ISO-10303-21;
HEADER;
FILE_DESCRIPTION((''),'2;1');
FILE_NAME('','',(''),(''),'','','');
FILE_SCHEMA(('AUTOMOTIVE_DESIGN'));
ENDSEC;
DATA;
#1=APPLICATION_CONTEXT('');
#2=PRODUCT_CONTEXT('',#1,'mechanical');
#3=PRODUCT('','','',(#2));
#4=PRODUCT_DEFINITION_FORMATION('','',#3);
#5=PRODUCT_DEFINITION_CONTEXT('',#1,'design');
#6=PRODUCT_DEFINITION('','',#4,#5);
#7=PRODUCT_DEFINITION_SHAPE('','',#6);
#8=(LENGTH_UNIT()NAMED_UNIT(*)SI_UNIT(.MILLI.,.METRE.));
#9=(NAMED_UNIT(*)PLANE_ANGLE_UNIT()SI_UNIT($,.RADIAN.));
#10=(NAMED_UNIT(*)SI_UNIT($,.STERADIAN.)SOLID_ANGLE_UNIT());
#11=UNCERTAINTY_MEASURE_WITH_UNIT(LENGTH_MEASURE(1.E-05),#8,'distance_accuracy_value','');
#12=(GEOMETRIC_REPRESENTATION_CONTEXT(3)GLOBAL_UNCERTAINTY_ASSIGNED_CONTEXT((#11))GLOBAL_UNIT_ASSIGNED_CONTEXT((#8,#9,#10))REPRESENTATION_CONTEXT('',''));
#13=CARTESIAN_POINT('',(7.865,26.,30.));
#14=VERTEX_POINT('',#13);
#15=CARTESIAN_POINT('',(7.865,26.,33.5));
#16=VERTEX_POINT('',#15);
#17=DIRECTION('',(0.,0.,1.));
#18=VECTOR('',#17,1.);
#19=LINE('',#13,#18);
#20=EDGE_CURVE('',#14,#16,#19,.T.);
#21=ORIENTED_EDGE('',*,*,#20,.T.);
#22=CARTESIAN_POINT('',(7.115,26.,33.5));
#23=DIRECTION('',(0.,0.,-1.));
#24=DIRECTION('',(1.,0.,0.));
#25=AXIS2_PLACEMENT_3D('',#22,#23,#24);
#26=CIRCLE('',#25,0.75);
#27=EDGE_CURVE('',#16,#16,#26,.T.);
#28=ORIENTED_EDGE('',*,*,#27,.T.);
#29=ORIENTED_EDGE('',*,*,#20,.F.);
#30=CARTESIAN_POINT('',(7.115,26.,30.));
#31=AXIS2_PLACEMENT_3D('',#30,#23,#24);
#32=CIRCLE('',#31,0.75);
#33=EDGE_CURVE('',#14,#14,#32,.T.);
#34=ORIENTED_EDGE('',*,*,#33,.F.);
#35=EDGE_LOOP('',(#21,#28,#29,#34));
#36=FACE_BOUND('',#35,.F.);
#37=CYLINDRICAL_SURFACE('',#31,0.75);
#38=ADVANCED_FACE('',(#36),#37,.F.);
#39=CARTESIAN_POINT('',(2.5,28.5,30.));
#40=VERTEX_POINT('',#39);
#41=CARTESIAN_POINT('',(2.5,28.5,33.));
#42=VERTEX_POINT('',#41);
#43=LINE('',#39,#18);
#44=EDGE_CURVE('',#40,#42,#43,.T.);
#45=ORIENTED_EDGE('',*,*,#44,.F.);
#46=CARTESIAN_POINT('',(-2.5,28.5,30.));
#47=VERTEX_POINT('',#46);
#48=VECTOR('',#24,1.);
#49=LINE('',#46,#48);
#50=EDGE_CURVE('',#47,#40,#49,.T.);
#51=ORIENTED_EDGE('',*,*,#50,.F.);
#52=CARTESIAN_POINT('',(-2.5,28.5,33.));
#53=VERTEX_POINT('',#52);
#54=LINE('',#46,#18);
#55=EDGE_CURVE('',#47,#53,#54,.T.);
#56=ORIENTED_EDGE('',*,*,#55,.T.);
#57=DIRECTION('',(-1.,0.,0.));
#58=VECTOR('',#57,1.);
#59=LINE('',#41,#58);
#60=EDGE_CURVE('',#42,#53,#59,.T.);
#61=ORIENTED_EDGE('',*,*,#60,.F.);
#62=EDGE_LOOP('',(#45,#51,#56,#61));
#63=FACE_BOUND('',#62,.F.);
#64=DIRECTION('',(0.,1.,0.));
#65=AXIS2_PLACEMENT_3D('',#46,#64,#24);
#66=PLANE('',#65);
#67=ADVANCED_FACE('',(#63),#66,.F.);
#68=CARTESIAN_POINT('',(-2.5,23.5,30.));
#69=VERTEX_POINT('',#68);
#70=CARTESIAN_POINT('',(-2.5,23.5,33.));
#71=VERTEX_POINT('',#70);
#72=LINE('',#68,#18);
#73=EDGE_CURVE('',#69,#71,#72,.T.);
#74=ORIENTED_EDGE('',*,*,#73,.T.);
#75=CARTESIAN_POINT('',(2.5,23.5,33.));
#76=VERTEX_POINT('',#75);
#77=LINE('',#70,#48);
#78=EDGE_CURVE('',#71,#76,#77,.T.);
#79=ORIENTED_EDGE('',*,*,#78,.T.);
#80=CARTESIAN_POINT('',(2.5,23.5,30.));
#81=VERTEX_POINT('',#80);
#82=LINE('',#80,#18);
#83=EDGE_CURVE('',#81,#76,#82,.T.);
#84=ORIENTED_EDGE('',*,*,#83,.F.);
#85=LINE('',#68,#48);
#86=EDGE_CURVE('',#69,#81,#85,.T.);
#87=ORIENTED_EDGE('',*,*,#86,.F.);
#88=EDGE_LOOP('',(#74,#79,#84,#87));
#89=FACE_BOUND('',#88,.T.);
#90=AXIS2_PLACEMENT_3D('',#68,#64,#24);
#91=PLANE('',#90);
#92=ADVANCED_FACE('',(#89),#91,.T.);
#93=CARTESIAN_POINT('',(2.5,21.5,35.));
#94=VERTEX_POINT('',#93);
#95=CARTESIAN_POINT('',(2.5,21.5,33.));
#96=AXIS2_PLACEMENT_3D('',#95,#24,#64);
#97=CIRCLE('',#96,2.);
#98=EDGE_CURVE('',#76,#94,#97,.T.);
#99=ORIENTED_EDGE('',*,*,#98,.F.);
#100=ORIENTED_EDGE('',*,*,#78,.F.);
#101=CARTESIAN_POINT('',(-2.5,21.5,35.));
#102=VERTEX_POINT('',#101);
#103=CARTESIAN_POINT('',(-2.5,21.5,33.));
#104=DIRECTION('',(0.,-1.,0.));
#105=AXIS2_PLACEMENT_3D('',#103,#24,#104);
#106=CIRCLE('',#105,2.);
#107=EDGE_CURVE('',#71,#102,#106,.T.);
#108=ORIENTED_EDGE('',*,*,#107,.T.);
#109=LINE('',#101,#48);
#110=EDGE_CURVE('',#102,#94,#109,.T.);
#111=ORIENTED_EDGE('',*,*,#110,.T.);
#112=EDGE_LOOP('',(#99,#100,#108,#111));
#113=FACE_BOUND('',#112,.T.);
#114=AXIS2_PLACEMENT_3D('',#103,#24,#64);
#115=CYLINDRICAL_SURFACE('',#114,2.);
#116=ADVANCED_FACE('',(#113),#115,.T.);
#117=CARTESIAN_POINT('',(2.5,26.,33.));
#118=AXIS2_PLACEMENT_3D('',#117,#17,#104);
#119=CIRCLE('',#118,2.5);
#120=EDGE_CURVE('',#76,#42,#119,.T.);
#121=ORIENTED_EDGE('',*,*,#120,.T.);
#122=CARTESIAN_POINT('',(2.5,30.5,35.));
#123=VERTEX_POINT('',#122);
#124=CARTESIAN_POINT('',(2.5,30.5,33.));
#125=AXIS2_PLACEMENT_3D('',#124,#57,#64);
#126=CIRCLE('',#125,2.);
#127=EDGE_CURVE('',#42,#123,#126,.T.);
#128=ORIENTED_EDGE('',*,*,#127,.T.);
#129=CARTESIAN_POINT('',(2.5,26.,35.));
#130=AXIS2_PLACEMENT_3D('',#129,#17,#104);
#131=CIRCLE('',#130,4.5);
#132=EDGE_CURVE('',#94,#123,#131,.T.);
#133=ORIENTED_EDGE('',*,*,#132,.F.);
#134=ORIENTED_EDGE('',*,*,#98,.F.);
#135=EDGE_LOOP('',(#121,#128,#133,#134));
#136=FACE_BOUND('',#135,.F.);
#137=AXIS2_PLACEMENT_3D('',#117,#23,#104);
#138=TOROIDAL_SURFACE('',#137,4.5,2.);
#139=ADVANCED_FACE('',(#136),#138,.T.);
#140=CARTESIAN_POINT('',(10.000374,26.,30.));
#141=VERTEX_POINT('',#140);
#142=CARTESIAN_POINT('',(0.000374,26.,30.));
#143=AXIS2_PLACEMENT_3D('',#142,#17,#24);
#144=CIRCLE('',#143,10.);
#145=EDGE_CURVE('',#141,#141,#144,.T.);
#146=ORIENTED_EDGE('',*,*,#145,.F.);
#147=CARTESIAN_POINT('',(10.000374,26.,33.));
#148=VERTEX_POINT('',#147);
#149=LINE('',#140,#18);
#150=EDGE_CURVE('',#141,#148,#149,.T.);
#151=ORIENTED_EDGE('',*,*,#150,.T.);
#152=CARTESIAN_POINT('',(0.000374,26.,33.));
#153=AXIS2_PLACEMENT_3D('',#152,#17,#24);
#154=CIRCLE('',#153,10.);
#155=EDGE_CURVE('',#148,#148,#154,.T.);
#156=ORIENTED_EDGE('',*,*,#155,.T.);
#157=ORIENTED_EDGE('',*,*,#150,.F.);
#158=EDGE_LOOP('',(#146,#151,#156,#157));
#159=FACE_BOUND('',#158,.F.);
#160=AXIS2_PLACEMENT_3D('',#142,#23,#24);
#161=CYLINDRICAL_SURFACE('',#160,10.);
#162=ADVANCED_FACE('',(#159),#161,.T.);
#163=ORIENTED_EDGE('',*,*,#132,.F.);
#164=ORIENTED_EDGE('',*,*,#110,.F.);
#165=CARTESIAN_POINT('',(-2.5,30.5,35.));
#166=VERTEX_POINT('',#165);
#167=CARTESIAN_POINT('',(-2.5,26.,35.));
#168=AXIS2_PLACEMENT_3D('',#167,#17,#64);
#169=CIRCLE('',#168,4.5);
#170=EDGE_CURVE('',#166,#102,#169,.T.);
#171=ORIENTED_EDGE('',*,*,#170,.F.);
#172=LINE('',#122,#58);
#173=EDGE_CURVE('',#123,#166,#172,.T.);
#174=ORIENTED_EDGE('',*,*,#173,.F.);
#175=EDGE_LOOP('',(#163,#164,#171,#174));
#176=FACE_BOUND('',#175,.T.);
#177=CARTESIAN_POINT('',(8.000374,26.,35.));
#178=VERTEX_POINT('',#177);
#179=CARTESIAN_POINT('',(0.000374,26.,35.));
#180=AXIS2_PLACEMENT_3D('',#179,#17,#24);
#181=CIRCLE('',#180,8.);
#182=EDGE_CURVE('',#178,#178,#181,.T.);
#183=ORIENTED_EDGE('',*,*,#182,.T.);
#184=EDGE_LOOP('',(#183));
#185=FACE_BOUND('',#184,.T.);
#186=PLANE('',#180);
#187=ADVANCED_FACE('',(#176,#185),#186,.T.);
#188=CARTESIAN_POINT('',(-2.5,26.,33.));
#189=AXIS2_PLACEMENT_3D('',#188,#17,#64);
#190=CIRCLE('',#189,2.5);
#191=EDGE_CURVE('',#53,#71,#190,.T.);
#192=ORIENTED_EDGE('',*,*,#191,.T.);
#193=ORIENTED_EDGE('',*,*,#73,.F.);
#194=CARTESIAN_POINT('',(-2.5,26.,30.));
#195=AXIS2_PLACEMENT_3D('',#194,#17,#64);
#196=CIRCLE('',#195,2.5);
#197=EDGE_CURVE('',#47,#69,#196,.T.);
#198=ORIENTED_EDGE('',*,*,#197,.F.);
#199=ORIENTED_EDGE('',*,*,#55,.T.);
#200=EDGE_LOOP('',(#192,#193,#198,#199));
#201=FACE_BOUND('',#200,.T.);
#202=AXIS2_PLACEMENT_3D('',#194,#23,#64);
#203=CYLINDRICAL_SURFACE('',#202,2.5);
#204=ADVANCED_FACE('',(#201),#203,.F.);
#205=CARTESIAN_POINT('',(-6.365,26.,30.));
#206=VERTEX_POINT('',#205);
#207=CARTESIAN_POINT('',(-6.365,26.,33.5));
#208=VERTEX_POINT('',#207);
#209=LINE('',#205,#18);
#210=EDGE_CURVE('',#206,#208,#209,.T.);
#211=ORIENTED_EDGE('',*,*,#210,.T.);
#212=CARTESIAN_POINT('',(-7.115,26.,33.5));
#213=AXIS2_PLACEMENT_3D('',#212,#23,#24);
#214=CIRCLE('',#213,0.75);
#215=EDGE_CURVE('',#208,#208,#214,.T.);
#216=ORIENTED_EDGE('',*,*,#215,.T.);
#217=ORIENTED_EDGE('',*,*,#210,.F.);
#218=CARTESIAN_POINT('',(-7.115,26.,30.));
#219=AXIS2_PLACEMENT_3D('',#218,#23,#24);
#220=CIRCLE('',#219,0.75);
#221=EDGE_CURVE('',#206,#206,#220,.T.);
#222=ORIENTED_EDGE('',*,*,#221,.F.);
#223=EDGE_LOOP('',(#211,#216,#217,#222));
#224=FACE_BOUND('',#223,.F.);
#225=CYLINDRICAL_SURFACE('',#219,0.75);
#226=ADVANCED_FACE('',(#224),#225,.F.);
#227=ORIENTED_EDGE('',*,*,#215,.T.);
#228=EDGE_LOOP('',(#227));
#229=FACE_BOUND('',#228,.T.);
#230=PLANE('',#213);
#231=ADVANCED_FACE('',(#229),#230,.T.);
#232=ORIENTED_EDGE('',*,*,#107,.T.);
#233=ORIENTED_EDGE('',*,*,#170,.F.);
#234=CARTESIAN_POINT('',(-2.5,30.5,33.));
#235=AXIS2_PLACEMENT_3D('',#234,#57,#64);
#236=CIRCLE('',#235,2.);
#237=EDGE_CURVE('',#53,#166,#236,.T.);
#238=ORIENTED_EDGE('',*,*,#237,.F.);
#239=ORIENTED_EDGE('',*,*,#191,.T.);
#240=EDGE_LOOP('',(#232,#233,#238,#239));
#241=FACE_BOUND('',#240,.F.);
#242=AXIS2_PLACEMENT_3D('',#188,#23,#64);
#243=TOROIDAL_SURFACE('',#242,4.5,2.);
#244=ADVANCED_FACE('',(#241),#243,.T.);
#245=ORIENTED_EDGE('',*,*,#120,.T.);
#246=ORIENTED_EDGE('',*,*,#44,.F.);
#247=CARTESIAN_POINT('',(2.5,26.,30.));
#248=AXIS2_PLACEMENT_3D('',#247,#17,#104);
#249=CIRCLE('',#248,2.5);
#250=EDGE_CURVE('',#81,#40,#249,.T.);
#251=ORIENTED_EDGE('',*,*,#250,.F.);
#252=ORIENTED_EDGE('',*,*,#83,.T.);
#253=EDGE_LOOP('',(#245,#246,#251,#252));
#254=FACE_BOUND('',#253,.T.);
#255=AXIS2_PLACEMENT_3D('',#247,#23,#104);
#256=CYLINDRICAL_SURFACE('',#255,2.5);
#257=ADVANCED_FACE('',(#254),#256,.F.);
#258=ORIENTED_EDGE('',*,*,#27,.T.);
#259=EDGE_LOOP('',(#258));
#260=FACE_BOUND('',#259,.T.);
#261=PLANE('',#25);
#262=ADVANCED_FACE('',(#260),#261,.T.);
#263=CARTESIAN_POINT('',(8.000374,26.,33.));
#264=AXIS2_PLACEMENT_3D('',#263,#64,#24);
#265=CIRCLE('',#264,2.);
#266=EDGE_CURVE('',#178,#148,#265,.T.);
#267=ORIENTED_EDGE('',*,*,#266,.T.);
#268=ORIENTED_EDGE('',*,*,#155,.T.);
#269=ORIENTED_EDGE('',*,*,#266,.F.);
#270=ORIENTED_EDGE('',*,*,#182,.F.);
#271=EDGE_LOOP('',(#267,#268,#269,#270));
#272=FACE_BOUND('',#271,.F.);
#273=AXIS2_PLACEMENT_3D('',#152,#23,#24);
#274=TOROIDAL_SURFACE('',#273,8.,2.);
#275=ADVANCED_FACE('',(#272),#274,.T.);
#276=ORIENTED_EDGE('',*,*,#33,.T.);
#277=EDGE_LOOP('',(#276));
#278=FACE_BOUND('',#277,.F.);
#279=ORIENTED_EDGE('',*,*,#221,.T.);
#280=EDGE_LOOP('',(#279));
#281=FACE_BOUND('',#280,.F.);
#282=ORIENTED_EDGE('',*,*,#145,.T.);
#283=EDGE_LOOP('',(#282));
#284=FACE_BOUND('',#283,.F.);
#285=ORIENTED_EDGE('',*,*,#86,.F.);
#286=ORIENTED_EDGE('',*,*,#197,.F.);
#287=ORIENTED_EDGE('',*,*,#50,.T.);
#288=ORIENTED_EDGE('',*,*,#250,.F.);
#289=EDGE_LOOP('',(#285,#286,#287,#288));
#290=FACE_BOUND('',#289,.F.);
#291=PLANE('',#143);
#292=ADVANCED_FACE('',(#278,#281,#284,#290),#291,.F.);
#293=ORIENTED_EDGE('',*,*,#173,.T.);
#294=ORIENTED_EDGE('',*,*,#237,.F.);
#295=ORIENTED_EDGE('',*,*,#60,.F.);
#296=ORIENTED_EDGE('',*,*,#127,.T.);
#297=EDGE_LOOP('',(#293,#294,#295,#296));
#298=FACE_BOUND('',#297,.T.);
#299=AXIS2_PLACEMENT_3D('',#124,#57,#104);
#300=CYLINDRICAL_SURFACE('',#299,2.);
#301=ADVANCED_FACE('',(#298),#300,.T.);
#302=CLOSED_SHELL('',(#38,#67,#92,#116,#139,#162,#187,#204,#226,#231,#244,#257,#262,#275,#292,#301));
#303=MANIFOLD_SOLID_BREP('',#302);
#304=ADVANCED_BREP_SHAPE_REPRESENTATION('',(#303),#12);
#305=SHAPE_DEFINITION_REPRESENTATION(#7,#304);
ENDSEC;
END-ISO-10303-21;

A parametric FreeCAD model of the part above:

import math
import FreeCAD as App
import Part
import Sketcher
Q = App.Units.Quantity


def edges_at(feature, points):
    """Names of the edges that pass closest to the given points."""
    edges = feature.Shape.Edges
    near = lambda p: min(range(len(edges)), key=lambda i: edges[i].distToShape(Part.Vertex(*p))[0])
    return sorted({f"Edge{near(p) + 1}" for p in points})

doc = App.newDocument("Part")
body = doc.addObject("PartDesign::Body", "Body")

# Sketch on XY plane
sketch1 = body.newObject("Sketcher::SketchObject", "Sketch")
sketch1.AttachmentSupport = (doc.getObject("XY_Plane"), [""])
sketch1.MapMode = "FlatFace"
sketch1.AttachmentOffset = App.Placement(App.Vector(0, 0, 30), App.Rotation())
sketch1.addGeometry([
    Part.Circle(App.Vector(0, 26, 0), App.Vector(0, 0, 1), 10),  # 0
    Part.ArcOfCircle(Part.Circle(App.Vector(-2.5, 26, 0), App.Vector(0, 0, 1), 2.5), math.radians(90), math.radians(270)),  # 1
    Part.LineSegment(App.Vector(-2.5, 28.5, 0), App.Vector(2.5, 28.5, 0)),  # 2
    Part.ArcOfCircle(Part.Circle(App.Vector(2.5, 26, 0), App.Vector(0, 0, 1), 2.5), math.radians(-90), math.radians(90)),  # 3
    Part.LineSegment(App.Vector(2.5, 23.5, 0), App.Vector(-2.5, 23.5, 0)),  # 4
], False)
sketch1.addConstraint([
    Sketcher.Constraint("Tangent", 1, 1, 2, 1),
    Sketcher.Constraint("Tangent", 2, 2, 3, 2),
    Sketcher.Constraint("Tangent", 3, 1, 4, 1),
    Sketcher.Constraint("Tangent", 4, 2, 1, 2),
    Sketcher.Constraint("Horizontal", 2),
    Sketcher.Constraint("Horizontal", 4),
    Sketcher.Constraint("Horizontal", 0, 3, 1, 3),
    Sketcher.Constraint("Diameter", 0, Q("20 mm")),
    Sketcher.Constraint("Radius", 1, Q("2.5 mm")),
    Sketcher.Constraint("DistanceX", 2, 1, 2, 2, Q("5 mm")),
    Sketcher.Constraint("DistanceY", -1, 1, 0, 3, Q("26 mm")),
    Sketcher.Constraint("DistanceX", 1, 3, -1, 1, Q("2.5 mm")),
    Sketcher.Constraint("DistanceX", -1, 1, 0, 3, Q("0.000374 mm")),
])
pad1 = body.newObject("PartDesign::Pad", "Pad")
pad1.Profile = sketch1
pad1.Length = 5
doc.recompute()

fillet = body.newObject("PartDesign::Fillet", "Fillet")
fillet.Base = (pad1, edges_at(pad1, [(-5, 26, 35)]))
fillet.Radius = 2
doc.recompute()

fillet2 = body.newObject("PartDesign::Fillet", "Fillet001")
fillet2.Base = (fillet, edges_at(fillet, [(-10, 26, 35)]))
fillet2.Radius = 2

# Sketch on XY plane
sketch2 = body.newObject("Sketcher::SketchObject", "Sketch001")
sketch2.AttachmentSupport = (doc.getObject("XY_Plane"), [""])
sketch2.MapMode = "FlatFace"
sketch2.AttachmentOffset = App.Placement(App.Vector(0, 0, 30), App.Rotation())
sketch2.addGeometry([
    Part.Circle(App.Vector(-7.1, 26, 0), App.Vector(0, 0, 1), 0.8),
    Part.Circle(App.Vector(7.1, 26, 0), App.Vector(0, 0, 1), 0.8),
], False)
sketch2.addConstraint([
    Sketcher.Constraint("Equal", 0, 1),
    Sketcher.Constraint("Symmetric", 0, 3, 1, 3, -2),
    Sketcher.Constraint("Diameter", 0, Q("1.5 mm")),
    Sketcher.Constraint("DistanceY", -1, 1, 0, 3, Q("26 mm")),
    Sketcher.Constraint("DistanceX", 0, 3, 1, 3, Q("14.23 mm")),
])
pocket1 = body.newObject("PartDesign::Pocket", "Pocket")
pocket1.Profile = sketch2
pocket1.Length = 3.5
pocket1.Reversed = True

doc.recompute()
